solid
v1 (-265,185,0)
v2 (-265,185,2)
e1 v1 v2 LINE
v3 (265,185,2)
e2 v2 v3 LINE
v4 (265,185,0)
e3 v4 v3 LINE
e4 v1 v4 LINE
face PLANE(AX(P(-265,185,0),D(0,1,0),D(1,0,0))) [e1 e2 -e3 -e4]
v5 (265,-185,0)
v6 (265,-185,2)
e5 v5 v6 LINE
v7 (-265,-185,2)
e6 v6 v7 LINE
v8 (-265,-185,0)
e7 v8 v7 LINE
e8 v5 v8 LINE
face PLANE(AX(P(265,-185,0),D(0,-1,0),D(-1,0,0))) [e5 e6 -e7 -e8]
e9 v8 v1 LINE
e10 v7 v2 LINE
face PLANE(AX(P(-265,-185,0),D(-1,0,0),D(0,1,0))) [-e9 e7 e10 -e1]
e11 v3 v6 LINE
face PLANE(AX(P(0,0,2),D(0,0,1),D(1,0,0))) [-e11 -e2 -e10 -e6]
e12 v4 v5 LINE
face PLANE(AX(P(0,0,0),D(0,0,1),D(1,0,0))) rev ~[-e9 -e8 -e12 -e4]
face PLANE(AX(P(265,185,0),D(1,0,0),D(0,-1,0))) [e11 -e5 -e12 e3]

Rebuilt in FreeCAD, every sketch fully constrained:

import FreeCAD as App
import Part
import Sketcher

doc = App.newDocument("Part")
body = doc.addObject("PartDesign::Body", "Body")

# Sketch on XY plane
sketch1 = body.newObject("Sketcher::SketchObject", "Sketch")
sketch1.AttachmentSupport = (doc.getObject("XY_Plane"), [""])
sketch1.MapMode = "FlatFace"
sketch1.addGeometry(Part.LineSegment(App.Vector(265, 185, 0), App.Vector(-265, 185, 0)), False)
sketch1.addGeometry(Part.LineSegment(App.Vector(-265, 185, 0), App.Vector(-265, -185, 0)), False)
sketch1.addGeometry(Part.LineSegment(App.Vector(-265, -185, 0), App.Vector(265, -185, 0)), False)
sketch1.addGeometry(Part.LineSegment(App.Vector(265, -185, 0), App.Vector(265, 185, 0)), False)
sketch1.addConstraint(Sketcher.Constraint("Coincident", 0, 2, 1, 1))
sketch1.addConstraint(Sketcher.Constraint("Coincident", 1, 2, 2, 1))
sketch1.addConstraint(Sketcher.Constraint("Coincident", 2, 2, 3, 1))
sketch1.addConstraint(Sketcher.Constraint("Coincident", 3, 2, 0, 1))
sketch1.addConstraint(Sketcher.Constraint("Horizontal", 0))
sketch1.addConstraint(Sketcher.Constraint("Vertical", 1))
sketch1.addConstraint(Sketcher.Constraint("Horizontal", 2))
sketch1.addConstraint(Sketcher.Constraint("Vertical", 3))
sketch1.addConstraint(Sketcher.Constraint("Symmetric", 0, 2, 2, 2, -1, 1))
sketch1.addConstraint(Sketcher.Constraint("DistanceX", 0, 2, 0, 1, 530.0))
sketch1.addConstraint(Sketcher.Constraint("DistanceY", 1, 2, 1, 1, 370.0))
pad1 = body.newObject("PartDesign::Pad", "Pad")
pad1.Profile = sketch1
pad1.Length = 2

doc.recompute()
